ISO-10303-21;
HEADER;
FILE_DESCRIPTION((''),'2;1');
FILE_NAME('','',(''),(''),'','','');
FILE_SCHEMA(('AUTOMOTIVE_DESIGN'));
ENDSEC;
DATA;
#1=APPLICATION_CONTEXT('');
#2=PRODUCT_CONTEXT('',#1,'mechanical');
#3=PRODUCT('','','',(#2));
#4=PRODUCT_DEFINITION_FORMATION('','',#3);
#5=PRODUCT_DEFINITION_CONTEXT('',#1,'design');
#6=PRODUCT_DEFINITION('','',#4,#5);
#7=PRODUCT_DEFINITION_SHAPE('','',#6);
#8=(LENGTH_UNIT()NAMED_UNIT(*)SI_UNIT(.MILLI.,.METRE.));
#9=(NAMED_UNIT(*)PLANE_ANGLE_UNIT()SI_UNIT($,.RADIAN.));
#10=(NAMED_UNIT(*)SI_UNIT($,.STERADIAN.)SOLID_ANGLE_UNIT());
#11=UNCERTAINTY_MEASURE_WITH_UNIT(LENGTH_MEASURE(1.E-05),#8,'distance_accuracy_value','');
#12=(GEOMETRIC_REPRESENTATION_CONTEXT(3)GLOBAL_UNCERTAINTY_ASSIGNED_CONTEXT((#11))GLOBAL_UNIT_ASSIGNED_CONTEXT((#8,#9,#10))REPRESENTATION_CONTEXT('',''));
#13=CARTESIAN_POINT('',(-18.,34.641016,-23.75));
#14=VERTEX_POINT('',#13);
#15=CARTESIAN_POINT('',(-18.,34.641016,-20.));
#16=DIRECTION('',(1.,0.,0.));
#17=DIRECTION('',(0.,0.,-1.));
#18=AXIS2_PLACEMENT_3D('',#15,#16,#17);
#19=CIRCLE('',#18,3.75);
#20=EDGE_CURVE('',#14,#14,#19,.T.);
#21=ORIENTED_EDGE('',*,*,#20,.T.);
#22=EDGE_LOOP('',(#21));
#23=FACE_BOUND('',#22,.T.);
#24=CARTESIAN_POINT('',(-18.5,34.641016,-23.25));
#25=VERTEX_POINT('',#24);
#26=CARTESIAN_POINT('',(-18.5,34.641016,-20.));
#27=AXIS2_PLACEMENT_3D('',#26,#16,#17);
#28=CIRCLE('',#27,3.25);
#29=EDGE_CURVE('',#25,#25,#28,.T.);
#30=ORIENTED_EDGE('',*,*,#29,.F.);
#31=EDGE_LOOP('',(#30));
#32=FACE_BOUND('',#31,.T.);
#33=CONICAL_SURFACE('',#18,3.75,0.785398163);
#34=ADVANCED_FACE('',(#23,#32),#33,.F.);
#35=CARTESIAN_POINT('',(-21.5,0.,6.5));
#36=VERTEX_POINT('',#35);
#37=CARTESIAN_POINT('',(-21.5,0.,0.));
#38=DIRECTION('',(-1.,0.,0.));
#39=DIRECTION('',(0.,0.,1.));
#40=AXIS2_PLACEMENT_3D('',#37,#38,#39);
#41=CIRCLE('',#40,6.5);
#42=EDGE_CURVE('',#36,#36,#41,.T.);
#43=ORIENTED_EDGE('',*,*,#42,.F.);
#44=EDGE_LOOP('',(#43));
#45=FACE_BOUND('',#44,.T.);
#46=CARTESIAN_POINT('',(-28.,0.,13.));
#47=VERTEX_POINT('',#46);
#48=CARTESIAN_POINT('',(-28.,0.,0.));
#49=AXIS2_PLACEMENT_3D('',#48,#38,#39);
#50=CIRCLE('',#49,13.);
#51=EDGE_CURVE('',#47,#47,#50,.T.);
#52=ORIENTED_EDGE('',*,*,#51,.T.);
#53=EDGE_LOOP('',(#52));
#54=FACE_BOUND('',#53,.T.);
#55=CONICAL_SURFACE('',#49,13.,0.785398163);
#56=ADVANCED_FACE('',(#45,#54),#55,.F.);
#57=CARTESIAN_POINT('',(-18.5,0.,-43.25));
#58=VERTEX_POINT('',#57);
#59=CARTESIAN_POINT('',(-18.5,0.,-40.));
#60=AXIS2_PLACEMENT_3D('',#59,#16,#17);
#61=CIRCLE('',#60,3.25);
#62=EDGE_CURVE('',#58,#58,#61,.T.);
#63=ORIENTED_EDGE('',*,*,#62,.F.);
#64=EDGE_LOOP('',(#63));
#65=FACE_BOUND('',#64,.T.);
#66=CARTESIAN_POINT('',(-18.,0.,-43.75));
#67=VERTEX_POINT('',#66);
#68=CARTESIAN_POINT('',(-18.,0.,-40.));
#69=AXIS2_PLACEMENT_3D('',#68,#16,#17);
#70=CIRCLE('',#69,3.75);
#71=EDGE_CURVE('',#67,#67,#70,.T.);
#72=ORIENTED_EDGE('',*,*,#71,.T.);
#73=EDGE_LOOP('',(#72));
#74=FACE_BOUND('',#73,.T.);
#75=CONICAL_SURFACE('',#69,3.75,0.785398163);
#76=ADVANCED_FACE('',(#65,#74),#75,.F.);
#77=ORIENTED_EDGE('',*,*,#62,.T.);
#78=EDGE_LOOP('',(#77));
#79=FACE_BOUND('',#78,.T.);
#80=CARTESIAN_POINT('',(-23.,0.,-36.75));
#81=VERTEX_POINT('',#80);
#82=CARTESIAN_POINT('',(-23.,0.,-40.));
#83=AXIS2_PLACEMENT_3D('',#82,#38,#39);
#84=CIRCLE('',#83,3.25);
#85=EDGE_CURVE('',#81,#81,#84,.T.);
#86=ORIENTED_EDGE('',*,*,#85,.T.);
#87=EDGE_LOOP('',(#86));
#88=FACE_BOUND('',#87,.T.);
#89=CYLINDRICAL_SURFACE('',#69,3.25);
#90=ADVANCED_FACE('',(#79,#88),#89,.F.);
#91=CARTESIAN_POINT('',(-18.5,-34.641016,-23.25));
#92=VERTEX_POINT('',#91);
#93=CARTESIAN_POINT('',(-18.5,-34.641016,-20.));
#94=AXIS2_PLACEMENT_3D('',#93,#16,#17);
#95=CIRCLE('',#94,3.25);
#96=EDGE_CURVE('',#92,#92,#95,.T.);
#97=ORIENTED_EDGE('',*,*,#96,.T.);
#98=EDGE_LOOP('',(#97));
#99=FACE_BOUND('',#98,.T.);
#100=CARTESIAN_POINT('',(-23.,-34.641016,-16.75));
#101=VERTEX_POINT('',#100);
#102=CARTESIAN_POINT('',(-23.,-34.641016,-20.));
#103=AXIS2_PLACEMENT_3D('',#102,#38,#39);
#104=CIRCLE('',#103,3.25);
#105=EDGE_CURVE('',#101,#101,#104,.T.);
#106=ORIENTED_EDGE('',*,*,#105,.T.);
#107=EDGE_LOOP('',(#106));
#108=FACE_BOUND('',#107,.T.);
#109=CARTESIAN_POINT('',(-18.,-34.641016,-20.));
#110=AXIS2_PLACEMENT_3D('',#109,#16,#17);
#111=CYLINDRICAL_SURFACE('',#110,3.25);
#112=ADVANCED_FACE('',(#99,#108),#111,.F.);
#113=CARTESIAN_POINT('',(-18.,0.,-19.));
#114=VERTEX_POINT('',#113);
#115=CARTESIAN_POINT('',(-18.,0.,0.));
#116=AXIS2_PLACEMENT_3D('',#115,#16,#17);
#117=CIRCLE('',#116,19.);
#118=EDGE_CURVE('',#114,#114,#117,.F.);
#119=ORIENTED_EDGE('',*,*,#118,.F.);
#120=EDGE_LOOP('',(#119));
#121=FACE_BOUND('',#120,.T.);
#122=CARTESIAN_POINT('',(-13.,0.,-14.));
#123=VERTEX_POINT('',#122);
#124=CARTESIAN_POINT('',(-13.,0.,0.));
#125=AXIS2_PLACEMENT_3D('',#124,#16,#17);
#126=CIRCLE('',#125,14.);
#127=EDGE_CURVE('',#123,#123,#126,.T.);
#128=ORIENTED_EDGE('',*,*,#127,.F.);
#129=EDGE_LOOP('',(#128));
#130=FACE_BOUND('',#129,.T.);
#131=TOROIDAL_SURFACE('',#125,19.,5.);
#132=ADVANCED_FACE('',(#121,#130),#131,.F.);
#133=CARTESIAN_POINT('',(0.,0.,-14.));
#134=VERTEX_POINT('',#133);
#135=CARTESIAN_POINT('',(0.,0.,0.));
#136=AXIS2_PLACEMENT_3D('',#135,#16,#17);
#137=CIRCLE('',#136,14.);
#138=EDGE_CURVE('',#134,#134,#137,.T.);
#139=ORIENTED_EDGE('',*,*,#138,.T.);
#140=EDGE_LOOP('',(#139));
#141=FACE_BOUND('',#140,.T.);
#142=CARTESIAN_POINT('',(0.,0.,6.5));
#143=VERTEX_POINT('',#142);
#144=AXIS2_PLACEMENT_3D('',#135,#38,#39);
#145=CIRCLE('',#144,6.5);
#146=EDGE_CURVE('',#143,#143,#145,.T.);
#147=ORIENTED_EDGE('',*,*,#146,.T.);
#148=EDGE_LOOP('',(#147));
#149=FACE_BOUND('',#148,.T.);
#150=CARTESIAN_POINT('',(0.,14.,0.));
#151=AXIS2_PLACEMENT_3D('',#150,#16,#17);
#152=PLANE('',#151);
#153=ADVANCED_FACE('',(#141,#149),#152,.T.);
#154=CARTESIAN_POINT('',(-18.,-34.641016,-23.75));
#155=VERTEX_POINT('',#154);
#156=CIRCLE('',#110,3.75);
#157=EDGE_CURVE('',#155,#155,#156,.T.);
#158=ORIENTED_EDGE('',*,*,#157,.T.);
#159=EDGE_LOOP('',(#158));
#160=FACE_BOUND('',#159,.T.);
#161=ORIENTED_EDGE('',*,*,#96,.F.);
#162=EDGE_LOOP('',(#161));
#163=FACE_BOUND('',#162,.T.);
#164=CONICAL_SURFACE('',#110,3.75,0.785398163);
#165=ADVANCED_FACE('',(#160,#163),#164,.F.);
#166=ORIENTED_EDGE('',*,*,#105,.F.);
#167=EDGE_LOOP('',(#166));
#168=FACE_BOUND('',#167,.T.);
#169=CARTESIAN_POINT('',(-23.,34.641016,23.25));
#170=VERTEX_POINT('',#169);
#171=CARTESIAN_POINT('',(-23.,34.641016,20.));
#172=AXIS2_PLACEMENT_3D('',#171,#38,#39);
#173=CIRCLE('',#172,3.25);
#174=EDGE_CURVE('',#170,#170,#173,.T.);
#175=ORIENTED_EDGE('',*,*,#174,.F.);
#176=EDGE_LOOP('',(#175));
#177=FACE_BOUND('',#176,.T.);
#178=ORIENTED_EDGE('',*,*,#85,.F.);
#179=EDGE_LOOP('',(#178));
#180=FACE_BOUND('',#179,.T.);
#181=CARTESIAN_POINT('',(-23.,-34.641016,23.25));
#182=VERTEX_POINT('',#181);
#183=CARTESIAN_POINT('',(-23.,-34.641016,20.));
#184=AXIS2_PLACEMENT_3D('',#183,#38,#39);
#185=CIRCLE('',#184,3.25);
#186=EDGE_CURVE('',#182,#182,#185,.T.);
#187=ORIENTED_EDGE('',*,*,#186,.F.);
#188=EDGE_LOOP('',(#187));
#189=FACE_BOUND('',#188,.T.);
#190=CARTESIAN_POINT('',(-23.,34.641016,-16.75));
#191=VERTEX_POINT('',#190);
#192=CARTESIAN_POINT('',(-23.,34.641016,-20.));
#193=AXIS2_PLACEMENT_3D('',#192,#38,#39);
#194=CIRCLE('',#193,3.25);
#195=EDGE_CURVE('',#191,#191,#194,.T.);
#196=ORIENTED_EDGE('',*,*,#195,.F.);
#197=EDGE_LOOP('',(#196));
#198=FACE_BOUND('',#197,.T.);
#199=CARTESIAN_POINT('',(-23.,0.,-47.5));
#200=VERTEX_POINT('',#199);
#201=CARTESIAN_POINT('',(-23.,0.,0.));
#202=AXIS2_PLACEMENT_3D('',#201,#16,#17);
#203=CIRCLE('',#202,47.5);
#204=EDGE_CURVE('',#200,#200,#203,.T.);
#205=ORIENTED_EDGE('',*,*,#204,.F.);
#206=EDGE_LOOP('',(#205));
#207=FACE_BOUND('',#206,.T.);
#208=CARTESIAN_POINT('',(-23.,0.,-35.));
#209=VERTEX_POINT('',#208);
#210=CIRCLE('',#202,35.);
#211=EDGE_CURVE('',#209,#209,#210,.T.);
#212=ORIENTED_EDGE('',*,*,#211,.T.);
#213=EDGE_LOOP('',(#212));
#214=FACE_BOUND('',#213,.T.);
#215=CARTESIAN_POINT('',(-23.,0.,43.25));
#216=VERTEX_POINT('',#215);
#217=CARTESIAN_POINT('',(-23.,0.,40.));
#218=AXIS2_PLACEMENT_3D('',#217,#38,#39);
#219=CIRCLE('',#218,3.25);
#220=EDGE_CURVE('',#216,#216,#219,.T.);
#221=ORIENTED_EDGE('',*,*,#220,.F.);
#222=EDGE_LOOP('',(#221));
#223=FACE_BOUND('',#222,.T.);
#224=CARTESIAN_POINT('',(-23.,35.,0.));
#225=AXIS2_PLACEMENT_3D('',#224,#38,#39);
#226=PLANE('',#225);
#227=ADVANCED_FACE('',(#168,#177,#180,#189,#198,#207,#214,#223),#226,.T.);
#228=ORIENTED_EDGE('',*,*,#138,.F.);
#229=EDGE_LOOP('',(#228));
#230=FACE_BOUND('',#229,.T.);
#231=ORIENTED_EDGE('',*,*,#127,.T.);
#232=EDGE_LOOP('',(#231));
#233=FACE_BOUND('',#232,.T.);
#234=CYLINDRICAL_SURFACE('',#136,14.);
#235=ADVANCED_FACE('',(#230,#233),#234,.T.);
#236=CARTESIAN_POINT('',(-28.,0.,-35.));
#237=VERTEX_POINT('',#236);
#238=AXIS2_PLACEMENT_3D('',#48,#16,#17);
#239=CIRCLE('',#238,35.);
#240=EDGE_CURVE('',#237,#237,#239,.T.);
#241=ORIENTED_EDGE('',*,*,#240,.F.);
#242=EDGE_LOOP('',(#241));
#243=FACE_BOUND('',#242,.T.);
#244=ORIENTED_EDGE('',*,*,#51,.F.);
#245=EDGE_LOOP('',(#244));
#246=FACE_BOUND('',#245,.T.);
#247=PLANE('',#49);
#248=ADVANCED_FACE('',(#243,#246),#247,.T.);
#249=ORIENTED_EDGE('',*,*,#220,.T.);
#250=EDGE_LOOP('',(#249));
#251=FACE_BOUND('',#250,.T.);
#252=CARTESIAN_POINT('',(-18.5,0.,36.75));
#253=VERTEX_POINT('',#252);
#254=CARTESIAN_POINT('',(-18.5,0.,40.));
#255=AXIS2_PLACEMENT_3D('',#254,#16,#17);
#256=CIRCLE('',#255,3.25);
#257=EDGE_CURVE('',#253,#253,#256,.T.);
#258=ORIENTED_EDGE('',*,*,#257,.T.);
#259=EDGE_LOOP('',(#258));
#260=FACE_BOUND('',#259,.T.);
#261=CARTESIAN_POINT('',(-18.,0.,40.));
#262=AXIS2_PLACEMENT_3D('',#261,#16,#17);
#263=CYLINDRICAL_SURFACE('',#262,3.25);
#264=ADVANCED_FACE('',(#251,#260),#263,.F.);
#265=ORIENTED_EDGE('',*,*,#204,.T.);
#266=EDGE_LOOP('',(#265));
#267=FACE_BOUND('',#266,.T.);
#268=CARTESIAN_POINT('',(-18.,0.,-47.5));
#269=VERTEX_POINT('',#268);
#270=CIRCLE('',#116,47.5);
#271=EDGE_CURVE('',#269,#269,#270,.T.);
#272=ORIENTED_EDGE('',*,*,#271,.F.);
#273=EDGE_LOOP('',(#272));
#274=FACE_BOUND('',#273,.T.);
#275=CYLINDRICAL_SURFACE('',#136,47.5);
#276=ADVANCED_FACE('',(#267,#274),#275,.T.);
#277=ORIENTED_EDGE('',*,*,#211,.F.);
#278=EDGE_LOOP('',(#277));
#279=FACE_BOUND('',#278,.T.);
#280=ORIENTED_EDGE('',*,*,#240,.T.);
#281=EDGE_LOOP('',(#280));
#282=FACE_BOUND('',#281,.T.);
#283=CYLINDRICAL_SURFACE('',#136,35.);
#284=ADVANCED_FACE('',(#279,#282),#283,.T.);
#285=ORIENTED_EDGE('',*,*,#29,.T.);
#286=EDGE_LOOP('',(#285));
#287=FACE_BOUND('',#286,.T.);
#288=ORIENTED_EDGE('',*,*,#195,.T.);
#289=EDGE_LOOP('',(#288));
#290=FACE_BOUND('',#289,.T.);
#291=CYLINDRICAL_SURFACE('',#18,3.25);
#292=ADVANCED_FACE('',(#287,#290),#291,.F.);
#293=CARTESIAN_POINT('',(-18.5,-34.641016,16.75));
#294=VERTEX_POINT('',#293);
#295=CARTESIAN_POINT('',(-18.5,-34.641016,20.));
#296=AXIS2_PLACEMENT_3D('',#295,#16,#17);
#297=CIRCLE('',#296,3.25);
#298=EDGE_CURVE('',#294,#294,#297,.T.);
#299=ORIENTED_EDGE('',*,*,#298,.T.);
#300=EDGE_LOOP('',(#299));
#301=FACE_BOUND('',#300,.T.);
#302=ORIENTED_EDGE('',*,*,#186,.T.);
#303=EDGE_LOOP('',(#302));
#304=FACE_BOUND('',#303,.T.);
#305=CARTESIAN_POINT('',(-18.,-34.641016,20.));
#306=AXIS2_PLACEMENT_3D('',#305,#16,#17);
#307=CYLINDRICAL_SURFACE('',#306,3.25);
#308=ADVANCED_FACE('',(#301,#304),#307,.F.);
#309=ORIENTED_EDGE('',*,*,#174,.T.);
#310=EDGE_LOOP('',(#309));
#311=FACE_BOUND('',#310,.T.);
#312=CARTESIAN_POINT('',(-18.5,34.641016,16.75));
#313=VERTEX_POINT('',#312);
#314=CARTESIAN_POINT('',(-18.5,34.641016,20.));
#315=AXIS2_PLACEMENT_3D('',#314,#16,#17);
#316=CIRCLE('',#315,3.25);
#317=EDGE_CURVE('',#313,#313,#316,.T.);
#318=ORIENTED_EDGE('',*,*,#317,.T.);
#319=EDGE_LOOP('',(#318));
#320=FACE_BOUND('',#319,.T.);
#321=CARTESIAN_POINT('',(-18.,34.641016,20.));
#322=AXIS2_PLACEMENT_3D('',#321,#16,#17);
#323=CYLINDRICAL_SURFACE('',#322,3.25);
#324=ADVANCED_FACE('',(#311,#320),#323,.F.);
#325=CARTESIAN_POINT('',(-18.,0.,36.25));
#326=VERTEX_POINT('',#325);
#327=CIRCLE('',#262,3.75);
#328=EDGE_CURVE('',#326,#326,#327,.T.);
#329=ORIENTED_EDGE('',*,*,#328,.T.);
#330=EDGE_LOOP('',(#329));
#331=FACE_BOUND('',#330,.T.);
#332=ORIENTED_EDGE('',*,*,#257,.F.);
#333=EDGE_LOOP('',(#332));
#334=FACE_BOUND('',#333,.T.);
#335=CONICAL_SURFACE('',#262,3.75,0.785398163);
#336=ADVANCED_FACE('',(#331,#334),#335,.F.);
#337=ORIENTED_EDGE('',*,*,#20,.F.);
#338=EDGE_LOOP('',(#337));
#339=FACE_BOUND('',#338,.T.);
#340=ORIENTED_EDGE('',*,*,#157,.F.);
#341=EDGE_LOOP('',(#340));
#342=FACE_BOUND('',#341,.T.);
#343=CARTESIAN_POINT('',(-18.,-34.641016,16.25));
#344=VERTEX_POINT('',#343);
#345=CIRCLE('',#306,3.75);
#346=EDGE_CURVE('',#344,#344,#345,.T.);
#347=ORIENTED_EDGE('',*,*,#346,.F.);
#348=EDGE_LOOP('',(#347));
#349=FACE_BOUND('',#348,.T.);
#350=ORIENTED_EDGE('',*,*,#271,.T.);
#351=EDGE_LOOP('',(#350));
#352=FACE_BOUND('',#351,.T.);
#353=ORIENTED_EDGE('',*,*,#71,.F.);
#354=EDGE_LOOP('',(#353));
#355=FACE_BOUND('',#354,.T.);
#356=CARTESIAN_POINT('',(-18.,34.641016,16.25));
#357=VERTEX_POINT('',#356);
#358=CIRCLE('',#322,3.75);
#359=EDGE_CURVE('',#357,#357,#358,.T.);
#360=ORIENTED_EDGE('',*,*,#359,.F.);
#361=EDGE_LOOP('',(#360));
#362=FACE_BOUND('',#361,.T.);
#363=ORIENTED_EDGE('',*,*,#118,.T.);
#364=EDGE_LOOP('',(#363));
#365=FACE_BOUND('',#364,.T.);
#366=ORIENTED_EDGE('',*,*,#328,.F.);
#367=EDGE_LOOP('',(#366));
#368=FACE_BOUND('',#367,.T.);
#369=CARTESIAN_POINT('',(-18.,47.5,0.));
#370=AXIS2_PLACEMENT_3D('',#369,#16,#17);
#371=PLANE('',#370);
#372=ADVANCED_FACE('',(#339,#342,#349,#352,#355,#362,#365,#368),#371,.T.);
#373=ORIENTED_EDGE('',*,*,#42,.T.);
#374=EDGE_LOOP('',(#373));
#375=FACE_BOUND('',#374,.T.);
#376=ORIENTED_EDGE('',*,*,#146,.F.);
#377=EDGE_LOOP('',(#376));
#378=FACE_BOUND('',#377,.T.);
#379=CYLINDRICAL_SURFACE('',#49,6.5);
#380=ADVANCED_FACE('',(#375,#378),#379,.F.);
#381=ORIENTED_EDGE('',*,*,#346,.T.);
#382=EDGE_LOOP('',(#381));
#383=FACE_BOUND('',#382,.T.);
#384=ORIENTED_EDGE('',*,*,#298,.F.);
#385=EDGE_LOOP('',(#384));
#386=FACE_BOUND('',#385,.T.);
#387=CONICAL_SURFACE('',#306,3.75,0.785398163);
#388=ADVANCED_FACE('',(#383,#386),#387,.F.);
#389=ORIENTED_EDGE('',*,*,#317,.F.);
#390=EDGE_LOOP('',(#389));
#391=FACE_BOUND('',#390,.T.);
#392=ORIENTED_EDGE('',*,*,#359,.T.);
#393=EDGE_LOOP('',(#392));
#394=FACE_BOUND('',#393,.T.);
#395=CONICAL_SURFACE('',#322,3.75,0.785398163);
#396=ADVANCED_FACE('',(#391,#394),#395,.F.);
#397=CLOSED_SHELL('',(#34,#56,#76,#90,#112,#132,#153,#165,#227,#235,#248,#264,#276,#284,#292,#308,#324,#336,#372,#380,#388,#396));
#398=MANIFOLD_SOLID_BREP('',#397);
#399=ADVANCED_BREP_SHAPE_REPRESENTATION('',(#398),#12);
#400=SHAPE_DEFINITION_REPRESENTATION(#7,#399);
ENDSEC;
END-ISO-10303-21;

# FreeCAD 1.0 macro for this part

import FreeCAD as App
import Part
import Sketcher
from FreeCAD import Vector
Q = App.Units.Quantity


def edges_at(feature, points):
    """Names of the edges that pass closest to the given points."""
    edges = feature.Shape.Edges
    near = lambda p: min(range(len(edges)), key=lambda i: edges[i].distToShape(Part.Vertex(*p))[0])
    return sorted({f"Edge{near(p) + 1}" for p in points})


def add_polygon(sketch, points):
    """Adds a closed chain of lines whose ends are joined by coincident constraints."""
    first, n = sketch.GeometryCount, len(points)
    for a, b in zip(points, points[1:] + points[:1]):
        sketch.addGeometry(Part.LineSegment(App.Vector(*a, 0), App.Vector(*b, 0)), False)
    for i in range(n):
        sketch.addConstraint(Sketcher.Constraint("Coincident", first + i, 2, first + (i + 1) % n, 1))

doc = App.newDocument("Part")
params = doc.addObject("Spreadsheet::Sheet", "Params")
for row, (alias, value) in enumerate([
    ("sketch1_width", "28 mm"),
    ("sketch1_width2", "18 mm"),
    ("sketch1_height", "14 mm"),
    ("sketch1_height2", "35 mm"),
    ("sketch1_height3", "33.5 mm"),
    ("revolution_angle", "360 deg"),
    ("fillet_radius", "5 mm"),
    ("sketch2_diameter", "13 mm"),
    ("hole_diameter", "13 mm"),
    ("hole_csink_diameter", "26 mm"),
    ("sketch3_diameter", "6.5 mm"),
    ("hole2_diameter", "6.5 mm"),
    ("hole2_csink_diameter", "7.5 mm"),
], start=1):
    params.set(f"A{row}", alias)
    params.set(f"B{row}", "=" + value)
    params.setAlias(f"B{row}", alias)

body = doc.addObject("PartDesign::Body", "Body")

# Sketch on XY plane
sketch1 = body.newObject("Sketcher::SketchObject", "Sketch")
sketch1.AttachmentSupport = (doc.getObject("XY_Plane"), [""])
sketch1.MapMode = "FlatFace"
add_polygon(sketch1, [(-28, 0), (0, 0), (0, 14), (-18, 14), (-18, 48), (-23, 48), (-23, 35), (-28, 35)])  # lines 0-7
sketch1.addConstraint([
    Sketcher.Constraint("Horizontal", 0),
    Sketcher.Constraint("Vertical", 1),
    Sketcher.Constraint("Horizontal", 2),
    Sketcher.Constraint("Vertical", 3),
    Sketcher.Constraint("Horizontal", 4),
    Sketcher.Constraint("Vertical", 5),
    Sketcher.Constraint("Horizontal", 6),
    Sketcher.Constraint("Vertical", 7),
    Sketcher.Constraint("Coincident", 0, 2, -1, 1),
    Sketcher.Constraint("Equal", 4, 6),
    Sketcher.Constraint("DistanceX", 0, 1, 0, 2, Q("28 mm")),
    Sketcher.Constraint("DistanceX", 2, 2, 2, 1, Q("18 mm")),
    Sketcher.Constraint("DistanceY", 1, 1, 1, 2, Q("14 mm")),
    Sketcher.Constraint("DistanceY", 7, 2, 7, 1, Q("35 mm")),
    Sketcher.Constraint("DistanceY", 3, 1, 3, 2, Q("33.5 mm")),
])
sketch1.setExpression("Constraints[18]", "Params.sketch1_width")
sketch1.setExpression("Constraints[19]", "Params.sketch1_width2")
sketch1.setExpression("Constraints[20]", "Params.sketch1_height")
sketch1.setExpression("Constraints[21]", "Params.sketch1_height2")
sketch1.setExpression("Constraints[22]", "Params.sketch1_height3")
revolution = body.newObject("PartDesign::Revolution", "Revolution")
revolution.Profile = sketch1
revolution.ReferenceAxis = (sketch1, ["H_Axis"])
revolution.setExpression("Angle", "Params.revolution_angle")
doc.recompute()

fillet = body.newObject("PartDesign::Fillet", "Fillet")
fillet.Base = (revolution, edges_at(revolution, [(-18, 0, 14)]))
fillet.setExpression("Radius", "Params.fillet_radius")

# Sketch on YZ plane
sketch2 = body.newObject("Sketcher::SketchObject", "Sketch001")
sketch2.AttachmentSupport = (doc.getObject("YZ_Plane"), [""])
sketch2.MapMode = "FlatFace"
sketch2.AttachmentOffset = App.Placement(Vector(0, 0, -28), App.Rotation())
sketch2.addGeometry(Part.Circle(Vector(0, 0, 0), Vector(0, 0, 1), 6), False)
sketch2.addConstraint([
    Sketcher.Constraint("Coincident", 0, 3, -1, 1),
    Sketcher.Constraint("Diameter", 0, Q("13 mm")),
])
sketch2.setExpression("Constraints[1]", "Params.sketch2_diameter")
doc.recompute()
hole = body.newObject("PartDesign::Hole", "Hole")
hole.Profile = sketch2
hole.ThreadType = "None"
hole.setExpression("Diameter", "Params.hole_diameter")
hole.DepthType = "ThroughAll"
hole.HoleCutType = "Countersink"
hole.setExpression("HoleCutDiameter", "Params.hole_csink_diameter")
hole.HoleCutCountersinkAngle = 90
hole.Reversed = True

# Sketch on YZ plane
sketch3 = body.newObject("Sketcher::SketchObject", "Sketch002")
sketch3.AttachmentSupport = (doc.getObject("YZ_Plane"), [""])
sketch3.MapMode = "FlatFace"
sketch3.AttachmentOffset = App.Placement(Vector(0, 0, -18), App.Rotation())
sketch3.addGeometry(Part.Circle(Vector(0, 40, 0), Vector(0, 0, 1), 3.2), False)
sketch3.addConstraint([
    Sketcher.Constraint("PointOnObject", 0, 3, -2),
    Sketcher.Constraint("Diameter", 0, Q("6.5 mm")),
    Sketcher.Constraint("DistanceY", -1, 1, 0, 3, Q("40 mm")),
])
sketch3.setExpression("Constraints[1]", "Params.sketch3_diameter")
doc.recompute()
hole2 = body.newObject("PartDesign::Hole", "Hole001")
hole2.Profile = sketch3
hole2.ThreadType = "None"
hole2.setExpression("Diameter", "Params.hole2_diameter")
hole2.DepthType = "ThroughAll"
hole2.HoleCutType = "Countersink"
hole2.setExpression("HoleCutDiameter", "Params.hole2_csink_diameter")
hole2.HoleCutCountersinkAngle = 90
doc.recompute()

polarpattern = body.newObject("PartDesign::PolarPattern", "PolarPattern")
polarpattern.Originals = [hole2]
polarpattern.Axis = (doc.getObject("X_Axis"), [""])
polarpattern.Angle = 360
polarpattern.Occurrences = 6
body.Tip = polarpattern

doc.recompute()
